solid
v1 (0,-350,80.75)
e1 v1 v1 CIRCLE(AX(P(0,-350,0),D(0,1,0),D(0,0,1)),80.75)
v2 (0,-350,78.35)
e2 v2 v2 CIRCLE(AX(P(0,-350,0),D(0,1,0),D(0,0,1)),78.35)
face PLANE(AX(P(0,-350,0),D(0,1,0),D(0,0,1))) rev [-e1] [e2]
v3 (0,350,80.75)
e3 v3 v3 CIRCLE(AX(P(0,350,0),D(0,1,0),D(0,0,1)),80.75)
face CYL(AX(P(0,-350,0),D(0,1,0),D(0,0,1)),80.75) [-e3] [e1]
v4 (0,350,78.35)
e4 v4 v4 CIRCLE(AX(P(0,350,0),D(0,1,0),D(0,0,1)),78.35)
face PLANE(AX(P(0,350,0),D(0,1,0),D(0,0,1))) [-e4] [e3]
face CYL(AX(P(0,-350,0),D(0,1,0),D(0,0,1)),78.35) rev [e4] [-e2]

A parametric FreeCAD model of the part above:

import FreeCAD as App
import Part
import Sketcher
from FreeCAD import Vector

doc = App.newDocument("Part")
body = doc.addObject("PartDesign::Body", "Body")

sketch1 = body.newObject("Sketcher::SketchObject", "Sketch")
sketch1.AttachmentSupport = (doc.getObject("XZ_Plane"), [""])
sketch1.MapMode = "FlatFace"
sketch1.addGeometry([
    Part.Circle(Vector(0, 0, 0), Vector(0, 0, 1), 81),
    Part.Circle(Vector(0, 0, 0), Vector(0, 0, 1), 78),
], False)
sketch1.addConstraint([
    Sketcher.Constraint("Coincident", 0, 3, -1, 1),
    Sketcher.Constraint("Coincident", 1, 3, -1, 1),
    Sketcher.Constraint("Diameter", 0, 161.5),
    Sketcher.Constraint("Diameter", 1, 156.7),
])
pad1 = body.newObject("PartDesign::Pad", "Pad")
pad1.Profile = sketch1
pad1.Type = "TwoLengths"
pad1.Length = 350
pad1.Length2 = 350
pad1.Reversed = True

doc.recompute()
